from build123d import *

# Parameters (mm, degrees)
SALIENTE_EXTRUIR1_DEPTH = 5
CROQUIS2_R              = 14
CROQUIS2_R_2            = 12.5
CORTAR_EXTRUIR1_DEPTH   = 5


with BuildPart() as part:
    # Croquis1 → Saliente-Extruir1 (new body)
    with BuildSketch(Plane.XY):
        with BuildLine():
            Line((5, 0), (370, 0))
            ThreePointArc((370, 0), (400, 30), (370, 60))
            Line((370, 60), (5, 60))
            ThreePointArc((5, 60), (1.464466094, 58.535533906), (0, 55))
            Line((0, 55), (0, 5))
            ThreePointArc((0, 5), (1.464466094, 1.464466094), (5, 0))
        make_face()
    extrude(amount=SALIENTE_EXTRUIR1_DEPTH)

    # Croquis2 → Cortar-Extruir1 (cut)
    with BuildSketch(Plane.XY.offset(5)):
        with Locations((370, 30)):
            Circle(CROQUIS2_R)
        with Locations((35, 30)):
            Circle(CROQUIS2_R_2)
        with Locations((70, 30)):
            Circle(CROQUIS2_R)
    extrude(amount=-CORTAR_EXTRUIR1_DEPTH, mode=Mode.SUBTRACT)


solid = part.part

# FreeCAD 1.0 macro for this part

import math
import FreeCAD as App
import Part
import Sketcher

doc = App.newDocument("Part")
body = doc.addObject("PartDesign::Body", "Body")

# Sketch on XY plane
sketch1 = body.newObject("Sketcher::SketchObject", "Sketch")
sketch1.AttachmentSupport = (doc.getObject("XY_Plane"), [""])
sketch1.MapMode = "FlatFace"
sketch1.addGeometry(Part.LineSegment(App.Vector(5, 0, 0), App.Vector(370, 0, 0)), False)
sketch1.addGeometry(Part.ArcOfCircle(Part.Circle(App.Vector(370, 30, 0), App.Vector(0, 0, 1), 30), math.radians(-90), math.radians(90)), False)
sketch1.addGeometry(Part.LineSegment(App.Vector(370, 60, 0), App.Vector(5, 60, 0)), False)
sketch1.addGeometry(Part.ArcOfCircle(Part.Circle(App.Vector(5, 55, 0), App.Vector(0, 0, 1), 5), math.radians(90), math.radians(180)), False)
sketch1.addGeometry(Part.LineSegment(App.Vector(0, 55, 0), App.Vector(0, 5, 0)), False)
sketch1.addGeometry(Part.ArcOfCircle(Part.Circle(App.Vector(5, 5, 0), App.Vector(0, 0, 1), 5), math.radians(180), math.radians(270)), False)
sketch1.addConstraint(Sketcher.Constraint("Tangent", 0, 2, 1, 1))
sketch1.addConstraint(Sketcher.Constraint("Tangent", 1, 2, 2, 1))
sketch1.addConstraint(Sketcher.Constraint("Tangent", 2, 2, 3, 1))
sketch1.addConstraint(Sketcher.Constraint("Tangent", 3, 2, 4, 1))
sketch1.addConstraint(Sketcher.Constraint("Tangent", 4, 2, 5, 1))
sketch1.addConstraint(Sketcher.Constraint("Tangent", 5, 2, 0, 1))
sketch1.addConstraint(Sketcher.Constraint("Horizontal", 0))
sketch1.addConstraint(Sketcher.Constraint("Horizontal", 2))
sketch1.addConstraint(Sketcher.Constraint("Vertical", 4))
sketch1.addConstraint(Sketcher.Constraint("Equal", 3, 5))
sketch1.addConstraint(Sketcher.Constraint("PointOnObject", 0, 2, -1))
sketch1.addConstraint(Sketcher.Constraint("PointOnObject", 3, 2, -2))
sketch1.addConstraint(Sketcher.Constraint("Radius", 1, 30.0))
sketch1.addConstraint(Sketcher.Constraint("Radius", 3, 5.0))
sketch1.addConstraint(Sketcher.Constraint("DistanceX", 0, 1, 0, 2, 365.0))
pad1 = body.newObject("PartDesign::Pad", "Pad")
pad1.Profile = sketch1
pad1.Length = 5

# Sketch on XY plane
sketch2 = body.newObject("Sketcher::SketchObject", "Sketch001")
sketch2.AttachmentSupport = (doc.getObject("XY_Plane"), [""])
sketch2.MapMode = "FlatFace"
sketch2.AttachmentOffset = App.Placement(App.Vector(0, 0, 5), App.Rotation())
sketch2.addGeometry(Part.Circle(App.Vector(370, 30, 0), App.Vector(0, 0, 1), 14), False)
sketch2.addGeometry(Part.Circle(App.Vector(35, 30, 0), App.Vector(0, 0, 1), 12), False)
sketch2.addGeometry(Part.Circle(App.Vector(70, 30, 0), App.Vector(0, 0, 1), 14), False)
sketch2.addConstraint(Sketcher.Constraint("Equal", 0, 2))
sketch2.addConstraint(Sketcher.Constraint("Horizontal", 0, 3, 1, 3))
sketch2.addConstraint(Sketcher.Constraint("Horizontal", 1, 3, 2, 3))
sketch2.addConstraint(Sketcher.Constraint("Diameter", 0, 28.0))
sketch2.addConstraint(Sketcher.Constraint("Diameter", 1, 25.0))
sketch2.addConstraint(Sketcher.Constraint("DistanceX", -1, 1, 0, 3, 370.0))
sketch2.addConstraint(Sketcher.Constraint("DistanceY", -1, 1, 0, 3, 30.0))
sketch2.addConstraint(Sketcher.Constraint("DistanceX", -1, 1, 1, 3, 35.0))
sketch2.addConstraint(Sketcher.Constraint("DistanceX", -1, 1, 2, 3, 70.0))
pocket1 = body.newObject("PartDesign::Pocket", "Pocket")
pocket1.Profile = sketch2
pocket1.Length = 5

doc.recompute()
